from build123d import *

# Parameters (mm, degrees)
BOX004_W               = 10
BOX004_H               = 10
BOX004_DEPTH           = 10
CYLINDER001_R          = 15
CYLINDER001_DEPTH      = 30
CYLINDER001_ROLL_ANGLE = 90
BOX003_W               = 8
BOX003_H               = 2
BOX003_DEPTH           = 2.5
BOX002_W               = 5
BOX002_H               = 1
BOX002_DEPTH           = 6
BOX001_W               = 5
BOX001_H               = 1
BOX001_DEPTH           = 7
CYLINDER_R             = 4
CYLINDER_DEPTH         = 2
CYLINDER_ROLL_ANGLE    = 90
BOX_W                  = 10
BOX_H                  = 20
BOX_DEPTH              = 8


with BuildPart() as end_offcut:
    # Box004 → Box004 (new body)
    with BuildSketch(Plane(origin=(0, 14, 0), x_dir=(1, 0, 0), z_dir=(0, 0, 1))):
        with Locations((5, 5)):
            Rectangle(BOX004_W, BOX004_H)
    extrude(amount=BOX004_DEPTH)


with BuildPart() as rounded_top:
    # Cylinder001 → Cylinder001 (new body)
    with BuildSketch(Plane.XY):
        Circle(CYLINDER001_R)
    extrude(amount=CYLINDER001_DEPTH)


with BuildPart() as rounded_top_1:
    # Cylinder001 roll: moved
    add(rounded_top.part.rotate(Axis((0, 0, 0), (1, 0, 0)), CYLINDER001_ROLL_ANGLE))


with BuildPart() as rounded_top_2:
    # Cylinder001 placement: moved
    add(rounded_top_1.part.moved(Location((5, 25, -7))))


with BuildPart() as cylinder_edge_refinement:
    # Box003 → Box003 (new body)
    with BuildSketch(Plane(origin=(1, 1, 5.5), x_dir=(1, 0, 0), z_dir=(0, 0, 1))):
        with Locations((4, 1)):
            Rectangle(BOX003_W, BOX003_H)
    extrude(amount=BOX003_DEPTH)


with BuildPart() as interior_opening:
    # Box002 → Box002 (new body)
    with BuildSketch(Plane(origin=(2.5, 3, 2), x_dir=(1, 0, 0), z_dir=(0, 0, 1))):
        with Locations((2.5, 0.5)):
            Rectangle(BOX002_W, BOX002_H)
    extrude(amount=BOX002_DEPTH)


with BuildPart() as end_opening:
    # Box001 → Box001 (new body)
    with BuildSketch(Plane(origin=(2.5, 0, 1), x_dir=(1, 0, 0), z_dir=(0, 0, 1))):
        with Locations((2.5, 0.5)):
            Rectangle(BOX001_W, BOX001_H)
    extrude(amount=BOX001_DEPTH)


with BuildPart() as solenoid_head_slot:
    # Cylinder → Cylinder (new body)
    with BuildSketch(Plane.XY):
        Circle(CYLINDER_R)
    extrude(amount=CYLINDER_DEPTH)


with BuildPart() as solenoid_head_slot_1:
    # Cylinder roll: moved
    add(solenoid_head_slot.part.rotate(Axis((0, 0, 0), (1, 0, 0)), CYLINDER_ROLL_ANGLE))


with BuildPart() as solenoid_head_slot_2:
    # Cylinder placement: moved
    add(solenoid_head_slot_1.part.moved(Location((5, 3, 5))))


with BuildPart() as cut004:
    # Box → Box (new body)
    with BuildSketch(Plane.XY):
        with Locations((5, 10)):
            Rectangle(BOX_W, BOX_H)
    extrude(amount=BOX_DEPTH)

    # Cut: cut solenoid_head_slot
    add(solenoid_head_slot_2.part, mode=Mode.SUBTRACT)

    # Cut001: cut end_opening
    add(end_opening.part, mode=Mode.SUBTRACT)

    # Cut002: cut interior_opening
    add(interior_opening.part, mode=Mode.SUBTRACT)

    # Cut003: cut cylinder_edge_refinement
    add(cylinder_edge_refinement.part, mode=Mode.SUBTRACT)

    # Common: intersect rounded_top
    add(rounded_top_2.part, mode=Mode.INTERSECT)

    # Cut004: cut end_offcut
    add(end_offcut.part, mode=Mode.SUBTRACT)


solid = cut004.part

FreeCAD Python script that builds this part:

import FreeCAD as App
import Part
import Sketcher
Q = App.Units.Quantity


def add_polygon(sketch, points):
    """Adds a closed chain of lines whose ends are joined by coincident constraints."""
    first, n = sketch.GeometryCount, len(points)
    for a, b in zip(points, points[1:] + points[:1]):
        sketch.addGeometry(Part.LineSegment(App.Vector(*a, 0), App.Vector(*b, 0)), False)
    for i in range(n):
        sketch.addConstraint(Sketcher.Constraint("Coincident", first + i, 2, first + (i + 1) % n, 1))

doc = App.newDocument("Part")
params = doc.addObject("Spreadsheet::Sheet", "Params")
for row, (alias, value) in enumerate([
    ("sketch1_width", "10 mm"),
    ("pad1_length", "10 mm"),
    ("sketch2_diameter", "30 mm"),
    ("pad2_length", "30 mm"),
    ("sketch3_width", "8 mm"),
    ("sketch3_height", "2 mm"),
    ("pad3_length", "2.5 mm"),
    ("sketch4_width", "5 mm"),
    ("sketch4_height", "1 mm"),
    ("pad4_length", "6 mm"),
    ("sketch5_width", "5 mm"),
    ("sketch5_height", "1 mm"),
    ("pad5_length", "7 mm"),
    ("sketch6_diameter", "8 mm"),
    ("pad6_length", "2 mm"),
    ("sketch7_width", "10 mm"),
    ("sketch7_height", "20 mm"),
    ("pad7_length", "8 mm"),
], start=1):
    params.set(f"A{row}", alias)
    params.set(f"B{row}", "=" + value)
    params.setAlias(f"B{row}", alias)

body = doc.addObject("PartDesign::Body", "Body")

# Sketch on XY plane
sketch1 = doc.addObject("Sketcher::SketchObject", "Sketch")
body.addObject(sketch1)
sketch1.AttachmentSupport = (doc.XY_Plane, [""])
sketch1.MapMode = "FlatFace"
add_polygon(sketch1, [(0, 24), (0, 14), (10, 14), (10, 24)])  # lines 0-3
sketch1.addConstraint(Sketcher.Constraint("Vertical", 0))
sketch1.addConstraint(Sketcher.Constraint("Horizontal", 1))
sketch1.addConstraint(Sketcher.Constraint("Vertical", 2))
sketch1.addConstraint(Sketcher.Constraint("Horizontal", 3))
sketch1.addConstraint(Sketcher.Constraint("PointOnObject", 0, 2, -2))
sketch1.addConstraint(Sketcher.Constraint("Equal", 3, 0))
sketch1.addConstraint(Sketcher.Constraint("DistanceX", 1, 1, 1, 2, Q("10 mm")))
sketch1.addConstraint(Sketcher.Constraint("DistanceY", -1, 1, 0, 2, Q("14 mm")))
sketch1.setExpression("Constraints[10]", "Params.sketch1_width")
pad1 = doc.addObject("PartDesign::Pad", "Pad")
body.addObject(pad1)
pad1.Profile = sketch1
pad1.setExpression("Length", "Params.pad1_length")
body2 = doc.addObject("PartDesign::Body", "Body001")

# Sketch on XY plane
sketch2 = doc.addObject("Sketcher::SketchObject", "Sketch001")
body2.addObject(sketch2)
sketch2.AttachmentSupport = (doc.getObject("XY_Plane001"), [""])
sketch2.MapMode = "FlatFace"
sketch2.addGeometry(Part.Circle(App.Vector(0, 0, 0), App.Vector(0, 0, 1), 15), False)
sketch2.addConstraint(Sketcher.Constraint("Coincident", 0, 3, -1, 1))
sketch2.addConstraint(Sketcher.Constraint("Diameter", 0, Q("30 mm")))
sketch2.setExpression("Constraints[1]", "Params.sketch2_diameter")
pad2 = doc.addObject("PartDesign::Pad", "Pad001")
body2.addObject(pad2)
pad2.Profile = sketch2
pad2.setExpression("Length", "Params.pad2_length")
body3 = doc.addObject("PartDesign::Body", "Body002")
doc.recompute()

body2.Placement = App.Placement(App.Vector(0, 0, 0), App.Rotation(App.Vector(1, 0, 0), 90))
boolean = doc.addObject("PartDesign::Boolean", "Boolean")
body3.addObject(boolean)
boolean.Type = "Fuse"
boolean.addObjects([body2])
body4 = doc.addObject("PartDesign::Body", "Body003")
doc.recompute()

body3.Placement = App.Placement(App.Vector(5, 25, -7), App.Rotation(App.Vector(0, 0, 1), 0))
boolean2 = doc.addObject("PartDesign::Boolean", "Boolean001")
body4.addObject(boolean2)
boolean2.Type = "Fuse"
boolean2.addObjects([body3])
body5 = doc.addObject("PartDesign::Body", "Body004")

# Sketch on XY plane
sketch3 = doc.addObject("Sketcher::SketchObject", "Sketch002")
body5.addObject(sketch3)
sketch3.AttachmentSupport = (doc.getObject("XY_Plane004"), [""])
sketch3.MapMode = "FlatFace"
sketch3.AttachmentOffset = App.Placement(App.Vector(0, 0, 5.5), App.Rotation())
add_polygon(sketch3, [(1, 3), (1, 1), (9, 1), (9, 3)])  # lines 0-3
sketch3.addConstraint(Sketcher.Constraint("Vertical", 0))
sketch3.addConstraint(Sketcher.Constraint("Horizontal", 1))
sketch3.addConstraint(Sketcher.Constraint("Vertical", 2))
sketch3.addConstraint(Sketcher.Constraint("Horizontal", 3))
sketch3.addConstraint(Sketcher.Constraint("DistanceX", 1, 1, 1, 2, Q("8 mm")))
sketch3.addConstraint(Sketcher.Constraint("DistanceY", 0, 2, 0, 1, Q("2 mm")))
sketch3.addConstraint(Sketcher.Constraint("DistanceX", -1, 1, 0, 2, Q("1 mm")))
sketch3.addConstraint(Sketcher.Constraint("DistanceY", -1, 1, 0, 2, Q("1 mm")))
sketch3.setExpression("Constraints[8]", "Params.sketch3_width")
sketch3.setExpression("Constraints[9]", "Params.sketch3_height")
pad3 = doc.addObject("PartDesign::Pad", "Pad002")
body5.addObject(pad3)
pad3.Profile = sketch3
pad3.setExpression("Length", "Params.pad3_length")
body6 = doc.addObject("PartDesign::Body", "Body005")

# Sketch on XY plane
sketch4 = doc.addObject("Sketcher::SketchObject", "Sketch003")
body6.addObject(sketch4)
sketch4.AttachmentSupport = (doc.getObject("XY_Plane005"), [""])
sketch4.MapMode = "FlatFace"
sketch4.AttachmentOffset = App.Placement(App.Vector(0, 0, 2), App.Rotation())
add_polygon(sketch4, [(2.5, 4), (2.5, 3), (7.5, 3), (7.5, 4)])  # lines 0-3
sketch4.addConstraint(Sketcher.Constraint("Vertical", 0))
sketch4.addConstraint(Sketcher.Constraint("Horizontal", 1))
sketch4.addConstraint(Sketcher.Constraint("Vertical", 2))
sketch4.addConstraint(Sketcher.Constraint("Horizontal", 3))
sketch4.addConstraint(Sketcher.Constraint("DistanceX", 1, 1, 1, 2, Q("5 mm")))
sketch4.addConstraint(Sketcher.Constraint("DistanceY", 0, 2, 0, 1, Q("1 mm")))
sketch4.addConstraint(Sketcher.Constraint("DistanceY", -1, 1, 0, 2, Q("3 mm")))
sketch4.addConstraint(Sketcher.Constraint("DistanceX", -1, 1, 0, 2, Q("2.5 mm")))
sketch4.setExpression("Constraints[8]", "Params.sketch4_width")
sketch4.setExpression("Constraints[9]", "Params.sketch4_height")
pad4 = doc.addObject("PartDesign::Pad", "Pad003")
body6.addObject(pad4)
pad4.Profile = sketch4
pad4.setExpression("Length", "Params.pad4_length")
body7 = doc.addObject("PartDesign::Body", "Body006")

# Sketch on XY plane
sketch5 = doc.addObject("Sketcher::SketchObject", "Sketch004")
body7.addObject(sketch5)
sketch5.AttachmentSupport = (doc.getObject("XY_Plane006"), [""])
sketch5.MapMode = "FlatFace"
sketch5.AttachmentOffset = App.Placement(App.Vector(0, 0, 1), App.Rotation())
add_polygon(sketch5, [(2.5, 1), (2.5, 0), (7.5, 0), (7.5, 1)])  # lines 0-3
sketch5.addConstraint(Sketcher.Constraint("Vertical", 0))
sketch5.addConstraint(Sketcher.Constraint("Horizontal", 1))
sketch5.addConstraint(Sketcher.Constraint("Vertical", 2))
sketch5.addConstraint(Sketcher.Constraint("Horizontal", 3))
sketch5.addConstraint(Sketcher.Constraint("PointOnObject", 0, 2, -1))
sketch5.addConstraint(Sketcher.Constraint("DistanceX", 1, 1, 1, 2, Q("5 mm")))
sketch5.addConstraint(Sketcher.Constraint("DistanceY", 0, 2, 0, 1, Q("1 mm")))
sketch5.addConstraint(Sketcher.Constraint("DistanceX", -1, 1, 0, 2, Q("2.5 mm")))
sketch5.setExpression("Constraints[9]", "Params.sketch5_width")
sketch5.setExpression("Constraints[10]", "Params.sketch5_height")
pad5 = doc.addObject("PartDesign::Pad", "Pad004")
body7.addObject(pad5)
pad5.Profile = sketch5
pad5.setExpression("Length", "Params.pad5_length")
body8 = doc.addObject("PartDesign::Body", "Body007")

# Sketch on XY plane
sketch6 = doc.addObject("Sketcher::SketchObject", "Sketch005")
body8.addObject(sketch6)
sketch6.AttachmentSupport = (doc.getObject("XY_Plane007"), [""])
sketch6.MapMode = "FlatFace"
sketch6.addGeometry(Part.Circle(App.Vector(0, 0, 0), App.Vector(0, 0, 1), 4), False)
sketch6.addConstraint(Sketcher.Constraint("Coincident", 0, 3, -1, 1))
sketch6.addConstraint(Sketcher.Constraint("Diameter", 0, Q("8 mm")))
sketch6.setExpression("Constraints[1]", "Params.sketch6_diameter")
pad6 = doc.addObject("PartDesign::Pad", "Pad005")
body8.addObject(pad6)
pad6.Profile = sketch6
pad6.setExpression("Length", "Params.pad6_length")
body9 = doc.addObject("PartDesign::Body", "Body008")
doc.recompute()

body8.Placement = App.Placement(App.Vector(0, 0, 0), App.Rotation(App.Vector(1, 0, 0), 90))
boolean3 = doc.addObject("PartDesign::Boolean", "Boolean002")
body9.addObject(boolean3)
boolean3.Type = "Fuse"
boolean3.addObjects([body8])
body10 = doc.addObject("PartDesign::Body", "Body009")
doc.recompute()

body9.Placement = App.Placement(App.Vector(5, 3, 5), App.Rotation(App.Vector(0, 0, 1), 0))
boolean4 = doc.addObject("PartDesign::Boolean", "Boolean003")
body10.addObject(boolean4)
boolean4.Type = "Fuse"
boolean4.addObjects([body9])
body11 = doc.addObject("PartDesign::Body", "Body010")

# Sketch on XY plane
sketch7 = doc.addObject("Sketcher::SketchObject", "Sketch006")
body11.addObject(sketch7)
sketch7.AttachmentSupport = (doc.getObject("XY_Plane010"), [""])
sketch7.MapMode = "FlatFace"
add_polygon(sketch7, [(0, 20), (0, 0), (10, 0), (10, 20)])  # lines 0-3
sketch7.addConstraint(Sketcher.Constraint("Vertical", 0))
sketch7.addConstraint(Sketcher.Constraint("Horizontal", 1))
sketch7.addConstraint(Sketcher.Constraint("Vertical", 2))
sketch7.addConstraint(Sketcher.Constraint("Horizontal", 3))
sketch7.addConstraint(Sketcher.Constraint("Coincident", 0, 2, -1, 1))
sketch7.addConstraint(Sketcher.Constraint("DistanceX", 1, 1, 1, 2, Q("10 mm")))
sketch7.addConstraint(Sketcher.Constraint("DistanceY", 0, 2, 0, 1, Q("20 mm")))
sketch7.setExpression("Constraints[9]", "Params.sketch7_width")
sketch7.setExpression("Constraints[10]", "Params.sketch7_height")
pad7 = doc.addObject("PartDesign::Pad", "Pad006")
body11.addObject(pad7)
pad7.Profile = sketch7
pad7.setExpression("Length", "Params.pad7_length")
doc.recompute()

boolean5 = doc.addObject("PartDesign::Boolean", "Boolean004")
body11.addObject(boolean5)
boolean5.Type = "Cut"
boolean5.addObjects([body10])
doc.recompute()

boolean6 = doc.addObject("PartDesign::Boolean", "Boolean005")
body11.addObject(boolean6)
boolean6.Type = "Cut"
boolean6.addObjects([body7])
doc.recompute()

boolean7 = doc.addObject("PartDesign::Boolean", "Boolean006")
body11.addObject(boolean7)
boolean7.Type = "Cut"
boolean7.addObjects([body6])
doc.recompute()

boolean8 = doc.addObject("PartDesign::Boolean", "Boolean007")
body11.addObject(boolean8)
boolean8.Type = "Cut"
boolean8.addObjects([body5])
doc.recompute()

boolean9 = doc.addObject("PartDesign::Boolean", "Boolean008")
body11.addObject(boolean9)
boolean9.Type = "Common"
boolean9.addObjects([body4])
doc.recompute()

boolean10 = doc.addObject("PartDesign::Boolean", "Boolean009")
body11.addObject(boolean10)
boolean10.Type = "Cut"
boolean10.addObjects([body])

doc.recompute()
